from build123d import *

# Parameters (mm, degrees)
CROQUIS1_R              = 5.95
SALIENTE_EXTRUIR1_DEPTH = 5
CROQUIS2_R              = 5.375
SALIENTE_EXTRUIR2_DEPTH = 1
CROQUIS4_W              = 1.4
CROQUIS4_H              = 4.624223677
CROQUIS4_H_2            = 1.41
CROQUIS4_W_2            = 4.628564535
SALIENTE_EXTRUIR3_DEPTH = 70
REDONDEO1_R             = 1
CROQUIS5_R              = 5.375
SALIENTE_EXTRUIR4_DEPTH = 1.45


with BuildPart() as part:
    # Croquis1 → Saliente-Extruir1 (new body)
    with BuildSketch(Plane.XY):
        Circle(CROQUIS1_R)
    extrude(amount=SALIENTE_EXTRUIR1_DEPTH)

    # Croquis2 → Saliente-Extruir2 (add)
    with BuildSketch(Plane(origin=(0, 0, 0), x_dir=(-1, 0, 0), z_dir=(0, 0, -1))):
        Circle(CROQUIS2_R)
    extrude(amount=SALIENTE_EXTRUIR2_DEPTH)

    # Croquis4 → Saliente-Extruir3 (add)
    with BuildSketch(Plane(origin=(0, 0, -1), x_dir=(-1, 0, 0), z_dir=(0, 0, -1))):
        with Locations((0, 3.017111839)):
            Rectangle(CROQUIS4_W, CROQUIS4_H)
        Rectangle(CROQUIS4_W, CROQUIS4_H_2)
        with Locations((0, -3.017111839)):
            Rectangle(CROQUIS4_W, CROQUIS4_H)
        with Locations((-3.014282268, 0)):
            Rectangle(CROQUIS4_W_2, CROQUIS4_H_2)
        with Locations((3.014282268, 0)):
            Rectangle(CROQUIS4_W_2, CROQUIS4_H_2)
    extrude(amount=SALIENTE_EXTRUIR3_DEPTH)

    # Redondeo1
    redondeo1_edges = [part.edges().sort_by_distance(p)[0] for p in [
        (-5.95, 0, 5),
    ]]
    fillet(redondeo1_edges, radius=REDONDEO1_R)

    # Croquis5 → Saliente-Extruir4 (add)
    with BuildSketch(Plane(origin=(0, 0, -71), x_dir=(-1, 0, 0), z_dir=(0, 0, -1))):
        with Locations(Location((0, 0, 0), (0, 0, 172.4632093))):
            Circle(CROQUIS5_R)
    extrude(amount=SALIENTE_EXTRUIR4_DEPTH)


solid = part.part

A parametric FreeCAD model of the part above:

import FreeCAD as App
import Part
import Sketcher
Q = App.Units.Quantity


def edges_at(feature, points):
    """Names of the edges that pass closest to the given points."""
    edges = feature.Shape.Edges
    near = lambda p: min(range(len(edges)), key=lambda i: edges[i].distToShape(Part.Vertex(*p))[0])
    return sorted({f"Edge{near(p) + 1}" for p in points})

doc = App.newDocument("Part")
params = doc.addObject("Spreadsheet::Sheet", "Params")
for row, (alias, value) in enumerate([
    ("sketch1_diameter", "11.9 mm"),
    ("pad1_length", "5 mm"),
    ("sketch2_diameter", "10.75 mm"),
    ("pad2_length", "1 mm"),
    ("sketch3_width", "1.4 mm"),
    ("sketch3_height", "1.41 mm"),
    ("pad3_length", "70 mm"),
    ("fillet_radius", "1 mm"),
    ("sketch4_diameter", "10.75 mm"),
    ("pad4_length", "1.45 mm"),
], start=1):
    params.set(f"A{row}", alias)
    params.set(f"B{row}", "=" + value)
    params.setAlias(f"B{row}", alias)

body = doc.addObject("PartDesign::Body", "Body")

# Sketch on XY plane
sketch1 = doc.addObject("Sketcher::SketchObject", "Sketch")
body.addObject(sketch1)
sketch1.AttachmentSupport = (doc.XY_Plane, [""])
sketch1.MapMode = "FlatFace"
sketch1.addGeometry(Part.Circle(App.Vector(0, 0, 0), App.Vector(0, 0, 1), 6), False)
sketch1.addConstraint([
    Sketcher.Constraint("Coincident", 0, 3, -1, 1),
    Sketcher.Constraint("Diameter", 0, Q("11.9 mm")),
])
sketch1.setExpression("Constraints[1]", "Params.sketch1_diameter")
pad1 = doc.addObject("PartDesign::Pad", "Pad")
body.addObject(pad1)
pad1.Profile = sketch1
pad1.setExpression("Length", "Params.pad1_length")

# Sketch on XY plane
sketch2 = doc.addObject("Sketcher::SketchObject", "Sketch001")
body.addObject(sketch2)
sketch2.AttachmentSupport = (doc.XY_Plane, [""])
sketch2.MapMode = "FlatFace"
sketch2.addGeometry(Part.Circle(App.Vector(0, 0, 0), App.Vector(0, 0, 1), 5), False)
sketch2.addConstraint([
    Sketcher.Constraint("Coincident", 0, 3, -1, 1),
    Sketcher.Constraint("Diameter", 0, Q("10.75 mm")),
])
sketch2.setExpression("Constraints[1]", "Params.sketch2_diameter")
pad2 = doc.addObject("PartDesign::Pad", "Pad001")
body.addObject(pad2)
pad2.Profile = sketch2
pad2.setExpression("Length", "Params.pad2_length")
pad2.Reversed = True

# Sketch on XY plane
sketch3 = doc.addObject("Sketcher::SketchObject", "Sketch002")
body.addObject(sketch3)
sketch3.AttachmentSupport = (doc.XY_Plane, [""])
sketch3.MapMode = "FlatFace"
sketch3.AttachmentOffset = App.Placement(App.Vector(0, 0, -1), App.Rotation())
sketch3.addGeometry([
    Part.LineSegment(App.Vector(0.7, 5.3, 0), App.Vector(0.7, 0.7, 0)),  # 0
    Part.LineSegment(App.Vector(0.7, 0.7, 0), App.Vector(5.3, 0.7, 0)),  # 1
    Part.LineSegment(App.Vector(5.3, 0.7, 0), App.Vector(5.3, -0.7, 0)),  # 2
    Part.LineSegment(App.Vector(5.3, -0.7, 0), App.Vector(0.7, -0.7, 0)),  # 3
    Part.LineSegment(App.Vector(0.7, -0.7, 0), App.Vector(0.7, -5.3, 0)),  # 4
    Part.LineSegment(App.Vector(0.7, -5.3, 0), App.Vector(-0.7, -5.3, 0)),  # 5
    Part.LineSegment(App.Vector(-0.7, -5.3, 0), App.Vector(-0.7, -0.7, 0)),  # 6
    Part.LineSegment(App.Vector(-0.7, -0.7, 0), App.Vector(-5.3, -0.7, 0)),  # 7
    Part.LineSegment(App.Vector(-5.3, -0.7, 0), App.Vector(-5.3, 0.7, 0)),  # 8
    Part.LineSegment(App.Vector(-5.3, 0.7, 0), App.Vector(-0.7, 0.7, 0)),  # 9
    Part.LineSegment(App.Vector(-0.7, 0.7, 0), App.Vector(-0.7, 5.3, 0)),  # 10
    Part.LineSegment(App.Vector(-0.7, 5.3, 0), App.Vector(0.7, 5.3, 0)),  # 11
], False)
sketch3.addConstraint([
    Sketcher.Constraint("Coincident", 0, 2, 1, 1),
    Sketcher.Constraint("Coincident", 1, 2, 2, 1),
    Sketcher.Constraint("Coincident", 2, 2, 3, 1),
    Sketcher.Constraint("Coincident", 3, 2, 4, 1),
    Sketcher.Constraint("Coincident", 4, 2, 5, 1),
    Sketcher.Constraint("Coincident", 5, 2, 6, 1),
    Sketcher.Constraint("Coincident", 6, 2, 7, 1),
    Sketcher.Constraint("Coincident", 7, 2, 8, 1),
    Sketcher.Constraint("Coincident", 8, 2, 9, 1),
    Sketcher.Constraint("Coincident", 9, 2, 10, 1),
    Sketcher.Constraint("Coincident", 10, 2, 11, 1),
    Sketcher.Constraint("Coincident", 11, 2, 0, 1),
    Sketcher.Constraint("Vertical", 0),
    Sketcher.Constraint("Horizontal", 1),
    Sketcher.Constraint("Vertical", 2),
    Sketcher.Constraint("Horizontal", 3),
    Sketcher.Constraint("Vertical", 4),
    Sketcher.Constraint("Horizontal", 5),
    Sketcher.Constraint("Vertical", 6),
    Sketcher.Constraint("Horizontal", 7),
    Sketcher.Constraint("Vertical", 8),
    Sketcher.Constraint("Horizontal", 9),
    Sketcher.Constraint("Vertical", 10),
    Sketcher.Constraint("Horizontal", 11),
    Sketcher.Constraint("Symmetric", 0, 2, 6, 2, -1, 1),
    Sketcher.Constraint("Symmetric", 2, 2, 8, 2, -1, 1),
    Sketcher.Constraint("Symmetric", 4, 2, 10, 2, -1, 1),
    Sketcher.Constraint("Symmetric", 3, 2, 6, 2, -2),
    Sketcher.Constraint("DistanceX", 5, 2, 5, 1, Q("1.4 mm")),
    Sketcher.Constraint("DistanceY", 2, 2, 2, 1, Q("1.41 mm")),
    Sketcher.Constraint("DistanceX", 1, 1, 1, 2, Q("4.628565 mm")),
    Sketcher.Constraint("DistanceY", 0, 2, 0, 1, Q("4.624224 mm")),
])
sketch3.setExpression("Constraints[28]", "Params.sketch3_width")
sketch3.setExpression("Constraints[29]", "Params.sketch3_height")
pad3 = doc.addObject("PartDesign::Pad", "Pad002")
body.addObject(pad3)
pad3.Profile = sketch3
pad3.setExpression("Length", "Params.pad3_length")
pad3.Reversed = True
doc.recompute()

fillet = doc.addObject("PartDesign::Fillet", "Fillet")
body.addObject(fillet)
fillet.Base = (pad3, edges_at(pad3, [(-5.95, 0, 5)]))
fillet.setExpression("Radius", "Params.fillet_radius")

# Sketch on XY plane
sketch4 = doc.addObject("Sketcher::SketchObject", "Sketch003")
body.addObject(sketch4)
sketch4.AttachmentSupport = (doc.XY_Plane, [""])
sketch4.MapMode = "FlatFace"
sketch4.AttachmentOffset = App.Placement(App.Vector(0, 0, -71), App.Rotation())
sketch4.addGeometry(Part.Circle(App.Vector(0, 0, 0), App.Vector(0, 0, 1), 5), False)
sketch4.addConstraint([
    Sketcher.Constraint("Coincident", 0, 3, -1, 1),
    Sketcher.Constraint("Diameter", 0, Q("10.75 mm")),
])
sketch4.setExpression("Constraints[1]", "Params.sketch4_diameter")
pad4 = doc.addObject("PartDesign::Pad", "Pad003")
body.addObject(pad4)
pad4.Profile = sketch4
pad4.setExpression("Length", "Params.pad4_length")
pad4.Reversed = True

doc.recompute()
